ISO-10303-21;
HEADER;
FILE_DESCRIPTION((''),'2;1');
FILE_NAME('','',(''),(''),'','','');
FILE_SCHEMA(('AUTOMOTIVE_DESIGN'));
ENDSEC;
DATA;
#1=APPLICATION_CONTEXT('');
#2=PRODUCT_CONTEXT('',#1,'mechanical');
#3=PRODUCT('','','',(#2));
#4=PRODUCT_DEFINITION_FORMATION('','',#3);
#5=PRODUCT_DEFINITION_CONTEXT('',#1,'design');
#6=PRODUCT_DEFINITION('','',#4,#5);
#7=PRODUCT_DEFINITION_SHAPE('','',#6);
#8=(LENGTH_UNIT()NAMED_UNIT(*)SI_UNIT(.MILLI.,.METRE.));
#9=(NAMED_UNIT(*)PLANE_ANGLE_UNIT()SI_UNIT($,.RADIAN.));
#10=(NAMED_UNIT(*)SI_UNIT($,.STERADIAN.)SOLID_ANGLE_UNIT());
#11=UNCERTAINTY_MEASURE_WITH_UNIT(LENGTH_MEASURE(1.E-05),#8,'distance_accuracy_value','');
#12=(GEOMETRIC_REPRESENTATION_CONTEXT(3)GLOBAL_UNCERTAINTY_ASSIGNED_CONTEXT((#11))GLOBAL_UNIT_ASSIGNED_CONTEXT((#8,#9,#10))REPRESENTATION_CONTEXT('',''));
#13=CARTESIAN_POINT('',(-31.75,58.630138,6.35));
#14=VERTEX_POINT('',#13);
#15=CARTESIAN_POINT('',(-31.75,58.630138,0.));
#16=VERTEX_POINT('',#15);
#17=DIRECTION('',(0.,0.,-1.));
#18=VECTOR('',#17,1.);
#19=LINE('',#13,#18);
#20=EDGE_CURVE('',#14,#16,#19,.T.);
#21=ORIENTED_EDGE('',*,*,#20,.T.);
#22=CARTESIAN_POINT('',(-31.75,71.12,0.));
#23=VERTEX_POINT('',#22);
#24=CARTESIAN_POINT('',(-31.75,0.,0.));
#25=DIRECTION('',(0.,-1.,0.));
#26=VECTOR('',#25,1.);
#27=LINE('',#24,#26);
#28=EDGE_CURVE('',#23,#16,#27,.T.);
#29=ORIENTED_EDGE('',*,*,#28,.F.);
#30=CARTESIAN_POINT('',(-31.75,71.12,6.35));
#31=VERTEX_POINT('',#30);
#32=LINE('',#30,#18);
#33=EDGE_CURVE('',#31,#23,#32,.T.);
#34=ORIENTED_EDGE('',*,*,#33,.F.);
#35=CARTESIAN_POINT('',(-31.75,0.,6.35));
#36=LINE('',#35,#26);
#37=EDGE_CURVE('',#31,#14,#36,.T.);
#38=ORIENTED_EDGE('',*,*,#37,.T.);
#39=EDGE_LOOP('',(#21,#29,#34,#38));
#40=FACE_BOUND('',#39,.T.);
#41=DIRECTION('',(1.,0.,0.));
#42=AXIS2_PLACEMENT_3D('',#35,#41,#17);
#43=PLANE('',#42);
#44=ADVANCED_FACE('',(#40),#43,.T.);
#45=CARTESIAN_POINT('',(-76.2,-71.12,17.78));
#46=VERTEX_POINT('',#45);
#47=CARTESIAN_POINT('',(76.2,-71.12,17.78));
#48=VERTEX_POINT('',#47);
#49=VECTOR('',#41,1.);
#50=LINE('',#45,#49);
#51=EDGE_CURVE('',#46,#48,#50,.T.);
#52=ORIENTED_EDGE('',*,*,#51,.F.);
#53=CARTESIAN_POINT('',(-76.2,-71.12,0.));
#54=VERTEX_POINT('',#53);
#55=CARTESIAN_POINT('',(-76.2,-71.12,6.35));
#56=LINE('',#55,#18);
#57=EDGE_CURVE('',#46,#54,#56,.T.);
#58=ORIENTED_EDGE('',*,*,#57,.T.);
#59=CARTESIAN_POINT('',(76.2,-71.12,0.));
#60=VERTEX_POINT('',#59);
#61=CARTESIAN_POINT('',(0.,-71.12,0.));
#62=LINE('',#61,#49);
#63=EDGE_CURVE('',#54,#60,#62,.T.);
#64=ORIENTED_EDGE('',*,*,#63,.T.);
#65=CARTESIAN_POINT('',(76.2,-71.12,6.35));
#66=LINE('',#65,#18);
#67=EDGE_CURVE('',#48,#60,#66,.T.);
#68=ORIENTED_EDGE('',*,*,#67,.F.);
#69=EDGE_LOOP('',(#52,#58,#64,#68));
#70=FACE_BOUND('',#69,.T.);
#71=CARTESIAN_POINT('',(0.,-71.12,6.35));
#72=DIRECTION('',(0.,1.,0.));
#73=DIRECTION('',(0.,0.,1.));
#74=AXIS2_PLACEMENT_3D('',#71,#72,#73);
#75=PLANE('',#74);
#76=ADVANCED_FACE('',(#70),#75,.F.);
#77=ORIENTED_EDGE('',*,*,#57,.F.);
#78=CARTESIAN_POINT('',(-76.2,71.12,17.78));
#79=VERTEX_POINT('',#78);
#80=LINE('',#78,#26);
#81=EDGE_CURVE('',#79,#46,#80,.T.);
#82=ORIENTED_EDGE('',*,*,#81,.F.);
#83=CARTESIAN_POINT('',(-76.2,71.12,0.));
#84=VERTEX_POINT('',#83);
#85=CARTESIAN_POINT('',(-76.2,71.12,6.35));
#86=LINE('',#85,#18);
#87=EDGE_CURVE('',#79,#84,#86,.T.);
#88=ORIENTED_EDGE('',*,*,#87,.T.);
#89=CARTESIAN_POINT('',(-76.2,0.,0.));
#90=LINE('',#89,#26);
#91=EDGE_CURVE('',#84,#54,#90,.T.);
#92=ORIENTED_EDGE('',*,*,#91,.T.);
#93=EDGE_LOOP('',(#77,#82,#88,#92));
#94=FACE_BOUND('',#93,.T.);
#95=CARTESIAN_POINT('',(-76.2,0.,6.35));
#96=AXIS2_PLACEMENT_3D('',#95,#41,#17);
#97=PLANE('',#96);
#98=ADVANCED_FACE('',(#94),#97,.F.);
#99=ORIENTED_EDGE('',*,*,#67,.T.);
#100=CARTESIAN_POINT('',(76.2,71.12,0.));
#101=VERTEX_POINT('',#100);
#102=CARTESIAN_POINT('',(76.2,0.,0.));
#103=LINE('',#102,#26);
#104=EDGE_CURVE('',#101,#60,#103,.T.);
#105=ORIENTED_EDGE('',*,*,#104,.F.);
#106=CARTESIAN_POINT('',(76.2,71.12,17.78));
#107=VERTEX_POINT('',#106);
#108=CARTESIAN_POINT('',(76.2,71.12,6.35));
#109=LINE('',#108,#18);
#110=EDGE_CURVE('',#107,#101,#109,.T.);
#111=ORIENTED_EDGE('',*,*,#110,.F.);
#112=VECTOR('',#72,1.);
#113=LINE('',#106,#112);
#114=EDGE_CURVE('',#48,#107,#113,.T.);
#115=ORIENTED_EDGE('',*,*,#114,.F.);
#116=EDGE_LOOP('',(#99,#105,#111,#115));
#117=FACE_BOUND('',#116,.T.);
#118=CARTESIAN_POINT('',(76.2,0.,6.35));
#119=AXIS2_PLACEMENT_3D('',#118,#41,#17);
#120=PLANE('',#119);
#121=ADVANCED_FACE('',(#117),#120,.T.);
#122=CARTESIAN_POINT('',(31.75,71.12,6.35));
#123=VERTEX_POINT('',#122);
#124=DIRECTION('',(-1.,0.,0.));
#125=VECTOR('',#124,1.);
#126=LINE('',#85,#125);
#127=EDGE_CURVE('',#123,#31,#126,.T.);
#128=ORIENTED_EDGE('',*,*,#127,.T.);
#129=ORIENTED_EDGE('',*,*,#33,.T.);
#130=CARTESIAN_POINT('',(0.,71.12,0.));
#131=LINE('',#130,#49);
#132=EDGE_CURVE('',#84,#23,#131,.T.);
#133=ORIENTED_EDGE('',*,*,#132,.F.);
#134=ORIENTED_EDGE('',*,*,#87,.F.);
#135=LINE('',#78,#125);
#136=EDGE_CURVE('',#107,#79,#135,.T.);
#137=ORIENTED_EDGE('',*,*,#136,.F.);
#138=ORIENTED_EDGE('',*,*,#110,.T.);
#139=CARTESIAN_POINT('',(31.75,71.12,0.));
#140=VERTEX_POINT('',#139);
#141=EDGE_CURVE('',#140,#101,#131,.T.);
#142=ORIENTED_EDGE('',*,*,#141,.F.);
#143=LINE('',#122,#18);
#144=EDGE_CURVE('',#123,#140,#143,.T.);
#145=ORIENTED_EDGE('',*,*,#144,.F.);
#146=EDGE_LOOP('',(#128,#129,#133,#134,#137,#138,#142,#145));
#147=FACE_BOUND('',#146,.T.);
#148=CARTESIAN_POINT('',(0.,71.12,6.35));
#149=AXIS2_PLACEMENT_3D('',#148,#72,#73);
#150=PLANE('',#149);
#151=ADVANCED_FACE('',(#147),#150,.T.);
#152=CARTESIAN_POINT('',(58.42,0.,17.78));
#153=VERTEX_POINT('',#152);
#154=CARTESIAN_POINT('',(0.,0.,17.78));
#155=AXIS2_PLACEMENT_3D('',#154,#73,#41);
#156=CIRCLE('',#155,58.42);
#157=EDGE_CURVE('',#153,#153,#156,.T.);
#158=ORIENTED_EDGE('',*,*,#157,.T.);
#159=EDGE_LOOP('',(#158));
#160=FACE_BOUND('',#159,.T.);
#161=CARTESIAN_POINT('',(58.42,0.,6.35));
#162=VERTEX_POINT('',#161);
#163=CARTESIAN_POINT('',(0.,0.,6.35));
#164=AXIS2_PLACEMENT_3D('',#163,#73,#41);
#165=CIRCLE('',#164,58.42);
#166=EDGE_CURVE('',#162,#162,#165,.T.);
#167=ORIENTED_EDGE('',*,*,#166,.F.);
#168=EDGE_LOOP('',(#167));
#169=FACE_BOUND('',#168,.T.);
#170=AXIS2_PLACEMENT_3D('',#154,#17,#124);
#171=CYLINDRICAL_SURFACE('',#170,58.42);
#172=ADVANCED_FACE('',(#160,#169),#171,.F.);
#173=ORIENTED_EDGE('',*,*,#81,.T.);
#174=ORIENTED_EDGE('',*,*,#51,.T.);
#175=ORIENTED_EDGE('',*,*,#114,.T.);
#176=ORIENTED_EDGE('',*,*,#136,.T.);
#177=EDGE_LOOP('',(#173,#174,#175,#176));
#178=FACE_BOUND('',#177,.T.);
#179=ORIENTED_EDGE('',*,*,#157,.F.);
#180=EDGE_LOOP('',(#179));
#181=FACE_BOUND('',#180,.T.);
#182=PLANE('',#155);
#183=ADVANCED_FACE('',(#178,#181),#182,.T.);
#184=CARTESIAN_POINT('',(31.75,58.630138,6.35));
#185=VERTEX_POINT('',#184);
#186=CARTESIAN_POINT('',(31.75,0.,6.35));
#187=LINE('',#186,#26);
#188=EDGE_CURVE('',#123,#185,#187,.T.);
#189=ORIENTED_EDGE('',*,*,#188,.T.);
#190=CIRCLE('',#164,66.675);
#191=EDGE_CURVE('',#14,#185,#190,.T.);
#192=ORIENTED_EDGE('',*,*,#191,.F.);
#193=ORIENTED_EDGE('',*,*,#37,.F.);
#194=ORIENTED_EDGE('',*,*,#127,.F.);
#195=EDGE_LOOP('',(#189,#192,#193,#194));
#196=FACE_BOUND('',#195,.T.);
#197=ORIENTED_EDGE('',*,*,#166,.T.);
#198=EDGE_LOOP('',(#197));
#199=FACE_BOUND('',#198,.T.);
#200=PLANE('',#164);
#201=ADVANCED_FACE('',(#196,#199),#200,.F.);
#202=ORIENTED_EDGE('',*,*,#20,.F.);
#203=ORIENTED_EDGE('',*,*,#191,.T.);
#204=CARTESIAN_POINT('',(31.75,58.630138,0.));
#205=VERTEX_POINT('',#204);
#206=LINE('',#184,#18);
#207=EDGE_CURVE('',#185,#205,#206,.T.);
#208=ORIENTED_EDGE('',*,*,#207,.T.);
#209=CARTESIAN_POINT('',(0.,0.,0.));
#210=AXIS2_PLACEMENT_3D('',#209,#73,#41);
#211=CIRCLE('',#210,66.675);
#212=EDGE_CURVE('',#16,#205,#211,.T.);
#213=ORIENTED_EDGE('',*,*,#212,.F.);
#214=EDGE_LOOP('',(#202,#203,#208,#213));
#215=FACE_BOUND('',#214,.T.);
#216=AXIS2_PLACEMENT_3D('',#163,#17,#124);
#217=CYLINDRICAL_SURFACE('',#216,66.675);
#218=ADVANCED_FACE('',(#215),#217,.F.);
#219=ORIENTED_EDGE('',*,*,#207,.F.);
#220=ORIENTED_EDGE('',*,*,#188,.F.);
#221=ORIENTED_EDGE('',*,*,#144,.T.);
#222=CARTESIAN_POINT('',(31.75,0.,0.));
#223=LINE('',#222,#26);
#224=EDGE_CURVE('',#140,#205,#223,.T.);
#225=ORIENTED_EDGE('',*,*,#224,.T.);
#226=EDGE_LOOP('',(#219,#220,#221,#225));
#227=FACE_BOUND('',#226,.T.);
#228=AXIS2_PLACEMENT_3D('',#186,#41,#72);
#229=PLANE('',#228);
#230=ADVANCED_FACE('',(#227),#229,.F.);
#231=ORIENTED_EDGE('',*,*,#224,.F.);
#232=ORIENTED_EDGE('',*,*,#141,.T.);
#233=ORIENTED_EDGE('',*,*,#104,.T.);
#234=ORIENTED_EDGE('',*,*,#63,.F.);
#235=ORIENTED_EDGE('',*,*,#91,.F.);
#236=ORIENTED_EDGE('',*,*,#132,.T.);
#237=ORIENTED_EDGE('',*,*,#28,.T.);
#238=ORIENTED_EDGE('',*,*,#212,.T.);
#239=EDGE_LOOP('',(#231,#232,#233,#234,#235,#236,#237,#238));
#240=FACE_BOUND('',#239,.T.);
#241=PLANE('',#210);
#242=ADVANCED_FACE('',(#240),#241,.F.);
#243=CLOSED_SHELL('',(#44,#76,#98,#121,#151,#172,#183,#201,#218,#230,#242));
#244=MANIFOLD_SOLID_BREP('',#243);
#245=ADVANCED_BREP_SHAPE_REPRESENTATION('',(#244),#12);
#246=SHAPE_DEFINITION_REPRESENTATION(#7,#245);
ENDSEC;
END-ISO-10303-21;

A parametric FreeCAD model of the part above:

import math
import FreeCAD as App
import Part
import Sketcher
Q = App.Units.Quantity


def add_polygon(sketch, points):
    """Adds a closed chain of lines whose ends are joined by coincident constraints."""
    first, n = sketch.GeometryCount, len(points)
    for a, b in zip(points, points[1:] + points[:1]):
        sketch.addGeometry(Part.LineSegment(App.Vector(*a, 0), App.Vector(*b, 0)), False)
    for i in range(n):
        sketch.addConstraint(Sketcher.Constraint("Coincident", first + i, 2, first + (i + 1) % n, 1))

doc = App.newDocument("Part")
params = doc.addObject("Spreadsheet::Sheet", "Params")
for row, (alias, value) in enumerate([
    ("sketch1_width", "6 in"),
    ("sketch1_height", "5.6 in"),
    ("sketch1_radius", "2.625 in"),
    ("sketch1_width2", "1.75 in"),
    ("pad1_length", "0.25 in"),
    ("sketch2_diameter", "4.6 in"),
    ("sketch2_width", "6 in"),
    ("sketch2_height", "5.6 in"),
    ("pad2_length", "0.45 in"),
], start=1):
    params.set(f"A{row}", alias)
    params.set(f"B{row}", "=" + value)
    params.setAlias(f"B{row}", alias)

body = doc.addObject("PartDesign::Body", "Body")

# Sketch on XY plane
sketch1 = doc.addObject("Sketcher::SketchObject", "Sketch")
body.addObject(sketch1)
sketch1.AttachmentSupport = (doc.XY_Plane, [""])
sketch1.MapMode = "FlatFace"
sketch1.addGeometry([
    Part.LineSegment(App.Vector(-32, 71, 0), App.Vector(-76, 71, 0)),  # 0
    Part.LineSegment(App.Vector(-76, 71, 0), App.Vector(-76, -71, 0)),  # 1
    Part.LineSegment(App.Vector(-76, -71, 0), App.Vector(76, -71, 0)),  # 2
    Part.LineSegment(App.Vector(76, -71, 0), App.Vector(76, 71, 0)),  # 3
    Part.LineSegment(App.Vector(76, 71, 0), App.Vector(32, 71, 0)),  # 4
    Part.LineSegment(App.Vector(32, 71, 0), App.Vector(32, 59, 0)),  # 5
    Part.ArcOfCircle(Part.Circle(App.Vector(0, 0, 0), App.Vector(0, 0, 1), 67), math.radians(118), math.radians(422)),  # 6
    Part.LineSegment(App.Vector(-32, 59, 0), App.Vector(-32, 71, 0)),  # 7
], False)
sketch1.addConstraint([
    Sketcher.Constraint("Coincident", 0, 2, 1, 1),
    Sketcher.Constraint("Coincident", 1, 2, 2, 1),
    Sketcher.Constraint("Coincident", 2, 2, 3, 1),
    Sketcher.Constraint("Coincident", 3, 2, 4, 1),
    Sketcher.Constraint("Coincident", 4, 2, 5, 1),
    Sketcher.Constraint("Coincident", 5, 2, 6, 2),
    Sketcher.Constraint("Coincident", 6, 1, 7, 1),
    Sketcher.Constraint("Coincident", 7, 2, 0, 1),
    Sketcher.Constraint("Horizontal", 0),
    Sketcher.Constraint("Vertical", 1),
    Sketcher.Constraint("Horizontal", 2),
    Sketcher.Constraint("Vertical", 3),
    Sketcher.Constraint("Horizontal", 4),
    Sketcher.Constraint("Vertical", 5),
    Sketcher.Constraint("Vertical", 7),
    Sketcher.Constraint("Coincident", 6, 3, -1, 1),
    Sketcher.Constraint("Symmetric", 0, 2, 2, 2, -1, 1),
    Sketcher.Constraint("Symmetric", 4, 2, 7, 2, -2),
    Sketcher.Constraint("DistanceX", 2, 1, 2, 2, Q("6 in")),
    Sketcher.Constraint("DistanceY", 1, 2, 1, 1, Q("5.6 in")),
    Sketcher.Constraint("Radius", 6, Q("2.625 in")),
    Sketcher.Constraint("DistanceX", 0, 2, 0, 1, Q("1.75 in")),
])
sketch1.setExpression("Constraints[18]", "Params.sketch1_width")
sketch1.setExpression("Constraints[19]", "Params.sketch1_height")
sketch1.setExpression("Constraints[20]", "Params.sketch1_radius")
sketch1.setExpression("Constraints[21]", "Params.sketch1_width2")
pad1 = doc.addObject("PartDesign::Pad", "Pad")
body.addObject(pad1)
pad1.Profile = sketch1
pad1.setExpression("Length", "Params.pad1_length")

# Sketch on XY plane
sketch2 = doc.addObject("Sketcher::SketchObject", "Sketch001")
body.addObject(sketch2)
sketch2.AttachmentSupport = (doc.XY_Plane, [""])
sketch2.MapMode = "FlatFace"
sketch2.AttachmentOffset = App.Placement(App.Vector(0, 0, 0.25 * 25.4), App.Rotation())
add_polygon(sketch2, [(-76, 71), (-76, -71), (76, -71), (76, 71)])  # lines 0-3
sketch2.addGeometry(Part.Circle(App.Vector(0, 0, 0), App.Vector(0, 0, 1), 58), False)  # 4
sketch2.addConstraint([
    Sketcher.Constraint("Vertical", 0),
    Sketcher.Constraint("Horizontal", 1),
    Sketcher.Constraint("Vertical", 2),
    Sketcher.Constraint("Horizontal", 3),
    Sketcher.Constraint("Coincident", 4, 3, -1, 1),
    Sketcher.Constraint("Symmetric", 0, 2, 2, 2, -1, 1),
    Sketcher.Constraint("Diameter", 4, Q("4.6 in")),
    Sketcher.Constraint("DistanceX", 1, 1, 1, 2, Q("6 in")),
    Sketcher.Constraint("DistanceY", 0, 2, 0, 1, Q("5.6 in")),
])
sketch2.setExpression("Constraints[10]", "Params.sketch2_diameter")
sketch2.setExpression("Constraints[11]", "Params.sketch2_width")
sketch2.setExpression("Constraints[12]", "Params.sketch2_height")
pad2 = doc.addObject("PartDesign::Pad", "Pad001")
body.addObject(pad2)
pad2.Profile = sketch2
pad2.setExpression("Length", "Params.pad2_length")

doc.recompute()
